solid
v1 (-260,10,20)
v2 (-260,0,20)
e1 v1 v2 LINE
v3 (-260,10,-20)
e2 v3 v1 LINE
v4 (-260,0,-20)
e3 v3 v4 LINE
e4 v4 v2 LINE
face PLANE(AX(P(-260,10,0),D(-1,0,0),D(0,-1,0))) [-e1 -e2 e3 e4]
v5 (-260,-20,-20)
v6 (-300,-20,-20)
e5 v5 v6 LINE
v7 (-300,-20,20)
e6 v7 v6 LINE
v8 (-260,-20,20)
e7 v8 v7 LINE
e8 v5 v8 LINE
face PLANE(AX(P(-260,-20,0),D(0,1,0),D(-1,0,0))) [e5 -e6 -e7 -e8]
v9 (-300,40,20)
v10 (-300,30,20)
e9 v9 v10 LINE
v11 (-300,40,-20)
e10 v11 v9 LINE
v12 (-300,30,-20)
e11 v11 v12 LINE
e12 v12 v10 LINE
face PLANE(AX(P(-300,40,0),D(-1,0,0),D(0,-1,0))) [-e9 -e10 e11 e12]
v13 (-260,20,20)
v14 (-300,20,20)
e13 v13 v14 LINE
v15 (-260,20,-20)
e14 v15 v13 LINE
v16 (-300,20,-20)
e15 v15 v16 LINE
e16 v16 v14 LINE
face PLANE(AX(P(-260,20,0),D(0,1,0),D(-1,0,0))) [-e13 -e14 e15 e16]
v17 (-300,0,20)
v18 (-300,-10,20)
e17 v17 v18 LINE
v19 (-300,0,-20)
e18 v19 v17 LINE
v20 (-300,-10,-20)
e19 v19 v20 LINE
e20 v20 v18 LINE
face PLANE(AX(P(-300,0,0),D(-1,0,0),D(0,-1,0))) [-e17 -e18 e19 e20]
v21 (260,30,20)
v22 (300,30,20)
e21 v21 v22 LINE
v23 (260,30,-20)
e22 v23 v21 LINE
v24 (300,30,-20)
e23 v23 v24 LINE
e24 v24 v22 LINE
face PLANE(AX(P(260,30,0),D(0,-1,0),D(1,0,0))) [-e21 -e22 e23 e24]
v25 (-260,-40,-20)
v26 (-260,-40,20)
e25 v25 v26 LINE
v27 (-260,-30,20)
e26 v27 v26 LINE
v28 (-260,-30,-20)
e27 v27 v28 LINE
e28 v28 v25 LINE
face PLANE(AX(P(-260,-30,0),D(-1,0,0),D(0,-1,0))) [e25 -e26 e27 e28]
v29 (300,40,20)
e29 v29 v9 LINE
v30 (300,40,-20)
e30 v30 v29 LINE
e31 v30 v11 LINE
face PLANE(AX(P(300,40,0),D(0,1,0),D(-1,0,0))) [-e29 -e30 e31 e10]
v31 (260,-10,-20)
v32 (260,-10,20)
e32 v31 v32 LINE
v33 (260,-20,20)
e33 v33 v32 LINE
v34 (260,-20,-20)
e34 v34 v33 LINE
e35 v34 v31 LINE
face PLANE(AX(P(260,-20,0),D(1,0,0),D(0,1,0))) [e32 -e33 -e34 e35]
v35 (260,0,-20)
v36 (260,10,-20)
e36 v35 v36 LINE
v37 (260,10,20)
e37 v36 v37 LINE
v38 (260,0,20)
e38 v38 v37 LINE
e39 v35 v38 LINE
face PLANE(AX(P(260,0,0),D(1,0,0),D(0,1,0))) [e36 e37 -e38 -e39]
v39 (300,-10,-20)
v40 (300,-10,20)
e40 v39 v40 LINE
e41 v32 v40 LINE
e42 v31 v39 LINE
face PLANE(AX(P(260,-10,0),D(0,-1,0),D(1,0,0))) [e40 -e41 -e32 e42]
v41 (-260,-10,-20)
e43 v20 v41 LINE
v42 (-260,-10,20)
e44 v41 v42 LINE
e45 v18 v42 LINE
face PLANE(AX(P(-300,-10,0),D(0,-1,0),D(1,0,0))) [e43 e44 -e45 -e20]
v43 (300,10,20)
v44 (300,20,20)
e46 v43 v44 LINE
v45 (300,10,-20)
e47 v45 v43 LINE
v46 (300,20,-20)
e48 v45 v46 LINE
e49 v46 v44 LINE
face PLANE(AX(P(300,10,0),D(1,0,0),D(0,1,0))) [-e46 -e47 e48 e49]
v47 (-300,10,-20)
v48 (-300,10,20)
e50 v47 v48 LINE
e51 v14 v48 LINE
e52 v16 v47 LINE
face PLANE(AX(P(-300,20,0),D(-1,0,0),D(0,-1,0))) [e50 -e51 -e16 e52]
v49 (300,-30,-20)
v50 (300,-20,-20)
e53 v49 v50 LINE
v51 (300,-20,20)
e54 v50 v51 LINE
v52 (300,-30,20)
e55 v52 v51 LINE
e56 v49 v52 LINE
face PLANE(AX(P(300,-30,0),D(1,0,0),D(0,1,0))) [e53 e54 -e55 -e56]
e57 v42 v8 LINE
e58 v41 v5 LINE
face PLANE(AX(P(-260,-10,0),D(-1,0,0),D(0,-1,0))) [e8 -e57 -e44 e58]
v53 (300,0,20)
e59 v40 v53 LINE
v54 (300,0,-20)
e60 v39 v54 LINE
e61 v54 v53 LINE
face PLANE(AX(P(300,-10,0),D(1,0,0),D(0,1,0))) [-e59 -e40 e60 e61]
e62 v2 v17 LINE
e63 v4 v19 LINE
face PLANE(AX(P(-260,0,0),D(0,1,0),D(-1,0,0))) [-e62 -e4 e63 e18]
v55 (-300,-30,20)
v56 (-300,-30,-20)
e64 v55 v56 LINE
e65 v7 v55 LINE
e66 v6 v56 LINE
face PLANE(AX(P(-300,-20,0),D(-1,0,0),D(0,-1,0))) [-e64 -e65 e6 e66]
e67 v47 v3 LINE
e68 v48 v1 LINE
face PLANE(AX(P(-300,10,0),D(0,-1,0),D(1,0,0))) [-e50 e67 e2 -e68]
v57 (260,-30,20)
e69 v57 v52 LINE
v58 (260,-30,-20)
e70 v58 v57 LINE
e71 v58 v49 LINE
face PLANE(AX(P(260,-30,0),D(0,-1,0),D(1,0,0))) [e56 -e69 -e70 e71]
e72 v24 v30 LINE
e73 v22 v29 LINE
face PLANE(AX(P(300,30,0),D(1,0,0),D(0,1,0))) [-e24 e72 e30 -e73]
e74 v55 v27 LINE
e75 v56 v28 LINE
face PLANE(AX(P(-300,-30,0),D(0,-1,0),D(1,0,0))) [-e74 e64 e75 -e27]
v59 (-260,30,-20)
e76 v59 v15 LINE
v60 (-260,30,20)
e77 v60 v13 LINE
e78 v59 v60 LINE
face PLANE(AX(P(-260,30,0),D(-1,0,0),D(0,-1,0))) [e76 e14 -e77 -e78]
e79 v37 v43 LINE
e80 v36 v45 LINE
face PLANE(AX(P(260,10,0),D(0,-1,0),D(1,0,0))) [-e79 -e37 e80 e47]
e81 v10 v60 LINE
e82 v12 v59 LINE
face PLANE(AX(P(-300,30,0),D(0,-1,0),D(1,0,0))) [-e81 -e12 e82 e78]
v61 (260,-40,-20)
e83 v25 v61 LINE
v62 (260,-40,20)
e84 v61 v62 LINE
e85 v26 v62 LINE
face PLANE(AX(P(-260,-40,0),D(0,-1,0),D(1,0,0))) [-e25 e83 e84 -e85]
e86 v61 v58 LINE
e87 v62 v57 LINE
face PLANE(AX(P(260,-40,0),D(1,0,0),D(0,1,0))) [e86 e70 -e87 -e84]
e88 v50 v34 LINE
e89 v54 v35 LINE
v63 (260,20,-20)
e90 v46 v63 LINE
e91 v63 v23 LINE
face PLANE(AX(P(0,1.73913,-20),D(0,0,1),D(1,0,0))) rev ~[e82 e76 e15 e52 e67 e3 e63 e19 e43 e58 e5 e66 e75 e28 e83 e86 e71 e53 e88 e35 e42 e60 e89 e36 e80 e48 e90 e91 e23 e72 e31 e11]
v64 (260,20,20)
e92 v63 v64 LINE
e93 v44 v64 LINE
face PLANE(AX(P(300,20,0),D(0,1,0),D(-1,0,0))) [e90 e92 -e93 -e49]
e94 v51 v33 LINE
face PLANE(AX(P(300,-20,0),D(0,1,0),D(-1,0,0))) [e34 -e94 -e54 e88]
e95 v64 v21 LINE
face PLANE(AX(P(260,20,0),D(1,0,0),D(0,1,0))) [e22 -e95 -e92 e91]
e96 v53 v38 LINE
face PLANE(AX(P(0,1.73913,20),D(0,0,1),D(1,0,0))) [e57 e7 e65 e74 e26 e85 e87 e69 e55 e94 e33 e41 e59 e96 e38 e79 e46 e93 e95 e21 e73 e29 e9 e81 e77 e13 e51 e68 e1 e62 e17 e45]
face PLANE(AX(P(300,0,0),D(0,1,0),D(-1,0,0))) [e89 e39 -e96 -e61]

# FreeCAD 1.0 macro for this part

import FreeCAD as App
import Part
import Sketcher

V = App.Vector
Q = App.Units.Quantity

doc = App.newDocument("Part")
params = doc.addObject("Spreadsheet::Sheet", "Params")
for row, (alias, value) in enumerate([
    ("sketch1_width", "520 mm"),
    ("sketch1_width2", "40 mm"),
    ("sketch1_height", "10 mm"),
    ("pad1_length", "40 mm"),
], start=1):
    params.set(f"A{row}", alias)
    params.set(f"B{row}", "=" + value)
    params.setAlias(f"B{row}", alias)

body = doc.addObject("PartDesign::Body", "Body")

sketch1 = doc.addObject("Sketcher::SketchObject", "Sketch")
body.addObject(sketch1)
sketch1.AttachmentSupport = (doc.XY_Plane, [""])
sketch1.MapMode = "FlatFace"
sketch1.addGeometry([
    Part.LineSegment(V(-260, -30, 0), V(-260, -40, 0)),
    Part.LineSegment(V(-260, -40, 0), V(260, -40, 0)),
    Part.LineSegment(V(260, -40, 0), V(260, -30, 0)),
    Part.LineSegment(V(260, -30, 0), V(300, -30, 0)),
    Part.LineSegment(V(300, -30, 0), V(300, -20, 0)),
    Part.LineSegment(V(300, -20, 0), V(260, -20, 0)),
    Part.LineSegment(V(260, -20, 0), V(260, -10, 0)),
    Part.LineSegment(V(260, -10, 0), V(300, -10, 0)),
    Part.LineSegment(V(300, -10, 0), V(300, 0, 0)),
    Part.LineSegment(V(300, 0, 0), V(260, 0, 0)),
    Part.LineSegment(V(260, 0, 0), V(260, 10, 0)),
    Part.LineSegment(V(260, 10, 0), V(300, 10, 0)),
    Part.LineSegment(V(300, 10, 0), V(300, 20, 0)),
    Part.LineSegment(V(300, 20, 0), V(260, 20, 0)),
    Part.LineSegment(V(260, 20, 0), V(260, 30, 0)),
    Part.LineSegment(V(260, 30, 0), V(300, 30, 0)),
    Part.LineSegment(V(300, 30, 0), V(300, 40, 0)),
    Part.LineSegment(V(300, 40, 0), V(-300, 40, 0)),
    Part.LineSegment(V(-300, 40, 0), V(-300, 30, 0)),
    Part.LineSegment(V(-300, 30, 0), V(-260, 30, 0)),
    Part.LineSegment(V(-260, 30, 0), V(-260, 20, 0)),
    Part.LineSegment(V(-260, 20, 0), V(-300, 20, 0)),
    Part.LineSegment(V(-300, 20, 0), V(-300, 10, 0)),
    Part.LineSegment(V(-300, 10, 0), V(-260, 10, 0)),
    Part.LineSegment(V(-260, 10, 0), V(-260, 0, 0)),
    Part.LineSegment(V(-260, 0, 0), V(-300, 0, 0)),
    Part.LineSegment(V(-300, 0, 0), V(-300, -10, 0)),
    Part.LineSegment(V(-300, -10, 0), V(-260, -10, 0)),
    Part.LineSegment(V(-260, -10, 0), V(-260, -20, 0)),
    Part.LineSegment(V(-260, -20, 0), V(-300, -20, 0)),
    Part.LineSegment(V(-300, -20, 0), V(-300, -30, 0)),
    Part.LineSegment(V(-300, -30, 0), V(-260, -30, 0)),
], False)
sketch1.addConstraint([
    Sketcher.Constraint("Coincident", 0, 2, 1, 1),
    Sketcher.Constraint("Coincident", 1, 2, 2, 1),
    Sketcher.Constraint("Coincident", 2, 2, 3, 1),
    Sketcher.Constraint("Coincident", 3, 2, 4, 1),
    Sketcher.Constraint("Coincident", 4, 2, 5, 1),
    Sketcher.Constraint("Coincident", 5, 2, 6, 1),
    Sketcher.Constraint("Coincident", 6, 2, 7, 1),
    Sketcher.Constraint("Coincident", 7, 2, 8, 1),
    Sketcher.Constraint("Coincident", 8, 2, 9, 1),
    Sketcher.Constraint("Coincident", 9, 2, 10, 1),
    Sketcher.Constraint("Coincident", 10, 2, 11, 1),
    Sketcher.Constraint("Coincident", 11, 2, 12, 1),
    Sketcher.Constraint("Coincident", 12, 2, 13, 1),
    Sketcher.Constraint("Coincident", 13, 2, 14, 1),
    Sketcher.Constraint("Coincident", 14, 2, 15, 1),
    Sketcher.Constraint("Coincident", 15, 2, 16, 1),
    Sketcher.Constraint("Coincident", 16, 2, 17, 1),
    Sketcher.Constraint("Coincident", 17, 2, 18, 1),
    Sketcher.Constraint("Coincident", 18, 2, 19, 1),
    Sketcher.Constraint("Coincident", 19, 2, 20, 1),
    Sketcher.Constraint("Coincident", 20, 2, 21, 1),
    Sketcher.Constraint("Coincident", 21, 2, 22, 1),
    Sketcher.Constraint("Coincident", 22, 2, 23, 1),
    Sketcher.Constraint("Coincident", 23, 2, 24, 1),
    Sketcher.Constraint("Coincident", 24, 2, 25, 1),
    Sketcher.Constraint("Coincident", 25, 2, 26, 1),
    Sketcher.Constraint("Coincident", 26, 2, 27, 1),
    Sketcher.Constraint("Coincident", 27, 2, 28, 1),
    Sketcher.Constraint("Coincident", 28, 2, 29, 1),
    Sketcher.Constraint("Coincident", 29, 2, 30, 1),
    Sketcher.Constraint("Coincident", 30, 2, 31, 1),
    Sketcher.Constraint("Coincident", 31, 2, 0, 1),
    Sketcher.Constraint("Vertical", 0),
    Sketcher.Constraint("Horizontal", 1),
    Sketcher.Constraint("Vertical", 2),
    Sketcher.Constraint("Horizontal", 3),
    Sketcher.Constraint("Vertical", 4),
    Sketcher.Constraint("Horizontal", 5),
    Sketcher.Constraint("Vertical", 6),
    Sketcher.Constraint("Horizontal", 7),
    Sketcher.Constraint("Vertical", 8),
    Sketcher.Constraint("Horizontal", 9),
    Sketcher.Constraint("Vertical", 10),
    Sketcher.Constraint("Horizontal", 11),
    Sketcher.Constraint("Vertical", 12),
    Sketcher.Constraint("Horizontal", 13),
    Sketcher.Constraint("Vertical", 14),
    Sketcher.Constraint("Horizontal", 15),
    Sketcher.Constraint("Vertical", 16),
    Sketcher.Constraint("Horizontal", 17),
    Sketcher.Constraint("Vertical", 18),
    Sketcher.Constraint("Horizontal", 19),
    Sketcher.Constraint("Vertical", 20),
    Sketcher.Constraint("Horizontal", 21),
    Sketcher.Constraint("Vertical", 22),
    Sketcher.Constraint("Horizontal", 23),
    Sketcher.Constraint("Vertical", 24),
    Sketcher.Constraint("Horizontal", 25),
    Sketcher.Constraint("Vertical", 26),
    Sketcher.Constraint("Horizontal", 27),
    Sketcher.Constraint("Vertical", 28),
    Sketcher.Constraint("Horizontal", 29),
    Sketcher.Constraint("Vertical", 30),
    Sketcher.Constraint("Horizontal", 31),
    Sketcher.Constraint("Symmetric", 3, 2, 18, 2, -1, 1),
    Sketcher.Constraint("Symmetric", 5, 2, 20, 2, -1, 1),
    Sketcher.Constraint("Symmetric", 7, 2, 22, 2, -1, 1),
    Sketcher.Constraint("Symmetric", 9, 2, 24, 2, -1, 1),
    Sketcher.Constraint("Symmetric", 11, 2, 26, 2, -1, 1),
    Sketcher.Constraint("Symmetric", 13, 2, 28, 2, -1, 1),
    Sketcher.Constraint("Symmetric", 15, 2, 30, 2, -1, 1),
    Sketcher.Constraint("Symmetric", 15, 2, 18, 2, -2),
    Sketcher.Constraint("Symmetric", 13, 2, 20, 2, -2),
    Sketcher.Constraint("Symmetric", 11, 2, 22, 2, -2),
    Sketcher.Constraint("PointOnObject", 8, 2, -1),
    Sketcher.Constraint("Vertical", 2, 2, 5, 2),
    Sketcher.Constraint("Vertical", 4, 2, 7, 2),
    Sketcher.Constraint("Vertical", 6, 2, 9, 2),
    Sketcher.Constraint("Vertical", 0, 2, 19, 2),
    Sketcher.Constraint("Equal", 2, 4),
    Sketcher.Constraint("Equal", 4, 6),
    Sketcher.Constraint("Equal", 6, 8),
    Sketcher.Constraint("Equal", 14, 16),
    Sketcher.Constraint("DistanceX", 1, 1, 1, 2, Q("520 mm")),
    Sketcher.Constraint("DistanceX", 3, 1, 3, 2, Q("40 mm")),
    Sketcher.Constraint("DistanceY", 0, 2, 0, 1, Q("10 mm")),
])
sketch1.setExpression("Constraints[83]", "Params.sketch1_width")
sketch1.setExpression("Constraints[84]", "Params.sketch1_width2")
sketch1.setExpression("Constraints[85]", "Params.sketch1_height")
pad1 = doc.addObject("PartDesign::Pad", "Pad")
body.addObject(pad1)
pad1.Profile = sketch1
pad1.setExpression("Length", "Params.pad1_length")
pad1.Midplane = True

doc.recompute()
